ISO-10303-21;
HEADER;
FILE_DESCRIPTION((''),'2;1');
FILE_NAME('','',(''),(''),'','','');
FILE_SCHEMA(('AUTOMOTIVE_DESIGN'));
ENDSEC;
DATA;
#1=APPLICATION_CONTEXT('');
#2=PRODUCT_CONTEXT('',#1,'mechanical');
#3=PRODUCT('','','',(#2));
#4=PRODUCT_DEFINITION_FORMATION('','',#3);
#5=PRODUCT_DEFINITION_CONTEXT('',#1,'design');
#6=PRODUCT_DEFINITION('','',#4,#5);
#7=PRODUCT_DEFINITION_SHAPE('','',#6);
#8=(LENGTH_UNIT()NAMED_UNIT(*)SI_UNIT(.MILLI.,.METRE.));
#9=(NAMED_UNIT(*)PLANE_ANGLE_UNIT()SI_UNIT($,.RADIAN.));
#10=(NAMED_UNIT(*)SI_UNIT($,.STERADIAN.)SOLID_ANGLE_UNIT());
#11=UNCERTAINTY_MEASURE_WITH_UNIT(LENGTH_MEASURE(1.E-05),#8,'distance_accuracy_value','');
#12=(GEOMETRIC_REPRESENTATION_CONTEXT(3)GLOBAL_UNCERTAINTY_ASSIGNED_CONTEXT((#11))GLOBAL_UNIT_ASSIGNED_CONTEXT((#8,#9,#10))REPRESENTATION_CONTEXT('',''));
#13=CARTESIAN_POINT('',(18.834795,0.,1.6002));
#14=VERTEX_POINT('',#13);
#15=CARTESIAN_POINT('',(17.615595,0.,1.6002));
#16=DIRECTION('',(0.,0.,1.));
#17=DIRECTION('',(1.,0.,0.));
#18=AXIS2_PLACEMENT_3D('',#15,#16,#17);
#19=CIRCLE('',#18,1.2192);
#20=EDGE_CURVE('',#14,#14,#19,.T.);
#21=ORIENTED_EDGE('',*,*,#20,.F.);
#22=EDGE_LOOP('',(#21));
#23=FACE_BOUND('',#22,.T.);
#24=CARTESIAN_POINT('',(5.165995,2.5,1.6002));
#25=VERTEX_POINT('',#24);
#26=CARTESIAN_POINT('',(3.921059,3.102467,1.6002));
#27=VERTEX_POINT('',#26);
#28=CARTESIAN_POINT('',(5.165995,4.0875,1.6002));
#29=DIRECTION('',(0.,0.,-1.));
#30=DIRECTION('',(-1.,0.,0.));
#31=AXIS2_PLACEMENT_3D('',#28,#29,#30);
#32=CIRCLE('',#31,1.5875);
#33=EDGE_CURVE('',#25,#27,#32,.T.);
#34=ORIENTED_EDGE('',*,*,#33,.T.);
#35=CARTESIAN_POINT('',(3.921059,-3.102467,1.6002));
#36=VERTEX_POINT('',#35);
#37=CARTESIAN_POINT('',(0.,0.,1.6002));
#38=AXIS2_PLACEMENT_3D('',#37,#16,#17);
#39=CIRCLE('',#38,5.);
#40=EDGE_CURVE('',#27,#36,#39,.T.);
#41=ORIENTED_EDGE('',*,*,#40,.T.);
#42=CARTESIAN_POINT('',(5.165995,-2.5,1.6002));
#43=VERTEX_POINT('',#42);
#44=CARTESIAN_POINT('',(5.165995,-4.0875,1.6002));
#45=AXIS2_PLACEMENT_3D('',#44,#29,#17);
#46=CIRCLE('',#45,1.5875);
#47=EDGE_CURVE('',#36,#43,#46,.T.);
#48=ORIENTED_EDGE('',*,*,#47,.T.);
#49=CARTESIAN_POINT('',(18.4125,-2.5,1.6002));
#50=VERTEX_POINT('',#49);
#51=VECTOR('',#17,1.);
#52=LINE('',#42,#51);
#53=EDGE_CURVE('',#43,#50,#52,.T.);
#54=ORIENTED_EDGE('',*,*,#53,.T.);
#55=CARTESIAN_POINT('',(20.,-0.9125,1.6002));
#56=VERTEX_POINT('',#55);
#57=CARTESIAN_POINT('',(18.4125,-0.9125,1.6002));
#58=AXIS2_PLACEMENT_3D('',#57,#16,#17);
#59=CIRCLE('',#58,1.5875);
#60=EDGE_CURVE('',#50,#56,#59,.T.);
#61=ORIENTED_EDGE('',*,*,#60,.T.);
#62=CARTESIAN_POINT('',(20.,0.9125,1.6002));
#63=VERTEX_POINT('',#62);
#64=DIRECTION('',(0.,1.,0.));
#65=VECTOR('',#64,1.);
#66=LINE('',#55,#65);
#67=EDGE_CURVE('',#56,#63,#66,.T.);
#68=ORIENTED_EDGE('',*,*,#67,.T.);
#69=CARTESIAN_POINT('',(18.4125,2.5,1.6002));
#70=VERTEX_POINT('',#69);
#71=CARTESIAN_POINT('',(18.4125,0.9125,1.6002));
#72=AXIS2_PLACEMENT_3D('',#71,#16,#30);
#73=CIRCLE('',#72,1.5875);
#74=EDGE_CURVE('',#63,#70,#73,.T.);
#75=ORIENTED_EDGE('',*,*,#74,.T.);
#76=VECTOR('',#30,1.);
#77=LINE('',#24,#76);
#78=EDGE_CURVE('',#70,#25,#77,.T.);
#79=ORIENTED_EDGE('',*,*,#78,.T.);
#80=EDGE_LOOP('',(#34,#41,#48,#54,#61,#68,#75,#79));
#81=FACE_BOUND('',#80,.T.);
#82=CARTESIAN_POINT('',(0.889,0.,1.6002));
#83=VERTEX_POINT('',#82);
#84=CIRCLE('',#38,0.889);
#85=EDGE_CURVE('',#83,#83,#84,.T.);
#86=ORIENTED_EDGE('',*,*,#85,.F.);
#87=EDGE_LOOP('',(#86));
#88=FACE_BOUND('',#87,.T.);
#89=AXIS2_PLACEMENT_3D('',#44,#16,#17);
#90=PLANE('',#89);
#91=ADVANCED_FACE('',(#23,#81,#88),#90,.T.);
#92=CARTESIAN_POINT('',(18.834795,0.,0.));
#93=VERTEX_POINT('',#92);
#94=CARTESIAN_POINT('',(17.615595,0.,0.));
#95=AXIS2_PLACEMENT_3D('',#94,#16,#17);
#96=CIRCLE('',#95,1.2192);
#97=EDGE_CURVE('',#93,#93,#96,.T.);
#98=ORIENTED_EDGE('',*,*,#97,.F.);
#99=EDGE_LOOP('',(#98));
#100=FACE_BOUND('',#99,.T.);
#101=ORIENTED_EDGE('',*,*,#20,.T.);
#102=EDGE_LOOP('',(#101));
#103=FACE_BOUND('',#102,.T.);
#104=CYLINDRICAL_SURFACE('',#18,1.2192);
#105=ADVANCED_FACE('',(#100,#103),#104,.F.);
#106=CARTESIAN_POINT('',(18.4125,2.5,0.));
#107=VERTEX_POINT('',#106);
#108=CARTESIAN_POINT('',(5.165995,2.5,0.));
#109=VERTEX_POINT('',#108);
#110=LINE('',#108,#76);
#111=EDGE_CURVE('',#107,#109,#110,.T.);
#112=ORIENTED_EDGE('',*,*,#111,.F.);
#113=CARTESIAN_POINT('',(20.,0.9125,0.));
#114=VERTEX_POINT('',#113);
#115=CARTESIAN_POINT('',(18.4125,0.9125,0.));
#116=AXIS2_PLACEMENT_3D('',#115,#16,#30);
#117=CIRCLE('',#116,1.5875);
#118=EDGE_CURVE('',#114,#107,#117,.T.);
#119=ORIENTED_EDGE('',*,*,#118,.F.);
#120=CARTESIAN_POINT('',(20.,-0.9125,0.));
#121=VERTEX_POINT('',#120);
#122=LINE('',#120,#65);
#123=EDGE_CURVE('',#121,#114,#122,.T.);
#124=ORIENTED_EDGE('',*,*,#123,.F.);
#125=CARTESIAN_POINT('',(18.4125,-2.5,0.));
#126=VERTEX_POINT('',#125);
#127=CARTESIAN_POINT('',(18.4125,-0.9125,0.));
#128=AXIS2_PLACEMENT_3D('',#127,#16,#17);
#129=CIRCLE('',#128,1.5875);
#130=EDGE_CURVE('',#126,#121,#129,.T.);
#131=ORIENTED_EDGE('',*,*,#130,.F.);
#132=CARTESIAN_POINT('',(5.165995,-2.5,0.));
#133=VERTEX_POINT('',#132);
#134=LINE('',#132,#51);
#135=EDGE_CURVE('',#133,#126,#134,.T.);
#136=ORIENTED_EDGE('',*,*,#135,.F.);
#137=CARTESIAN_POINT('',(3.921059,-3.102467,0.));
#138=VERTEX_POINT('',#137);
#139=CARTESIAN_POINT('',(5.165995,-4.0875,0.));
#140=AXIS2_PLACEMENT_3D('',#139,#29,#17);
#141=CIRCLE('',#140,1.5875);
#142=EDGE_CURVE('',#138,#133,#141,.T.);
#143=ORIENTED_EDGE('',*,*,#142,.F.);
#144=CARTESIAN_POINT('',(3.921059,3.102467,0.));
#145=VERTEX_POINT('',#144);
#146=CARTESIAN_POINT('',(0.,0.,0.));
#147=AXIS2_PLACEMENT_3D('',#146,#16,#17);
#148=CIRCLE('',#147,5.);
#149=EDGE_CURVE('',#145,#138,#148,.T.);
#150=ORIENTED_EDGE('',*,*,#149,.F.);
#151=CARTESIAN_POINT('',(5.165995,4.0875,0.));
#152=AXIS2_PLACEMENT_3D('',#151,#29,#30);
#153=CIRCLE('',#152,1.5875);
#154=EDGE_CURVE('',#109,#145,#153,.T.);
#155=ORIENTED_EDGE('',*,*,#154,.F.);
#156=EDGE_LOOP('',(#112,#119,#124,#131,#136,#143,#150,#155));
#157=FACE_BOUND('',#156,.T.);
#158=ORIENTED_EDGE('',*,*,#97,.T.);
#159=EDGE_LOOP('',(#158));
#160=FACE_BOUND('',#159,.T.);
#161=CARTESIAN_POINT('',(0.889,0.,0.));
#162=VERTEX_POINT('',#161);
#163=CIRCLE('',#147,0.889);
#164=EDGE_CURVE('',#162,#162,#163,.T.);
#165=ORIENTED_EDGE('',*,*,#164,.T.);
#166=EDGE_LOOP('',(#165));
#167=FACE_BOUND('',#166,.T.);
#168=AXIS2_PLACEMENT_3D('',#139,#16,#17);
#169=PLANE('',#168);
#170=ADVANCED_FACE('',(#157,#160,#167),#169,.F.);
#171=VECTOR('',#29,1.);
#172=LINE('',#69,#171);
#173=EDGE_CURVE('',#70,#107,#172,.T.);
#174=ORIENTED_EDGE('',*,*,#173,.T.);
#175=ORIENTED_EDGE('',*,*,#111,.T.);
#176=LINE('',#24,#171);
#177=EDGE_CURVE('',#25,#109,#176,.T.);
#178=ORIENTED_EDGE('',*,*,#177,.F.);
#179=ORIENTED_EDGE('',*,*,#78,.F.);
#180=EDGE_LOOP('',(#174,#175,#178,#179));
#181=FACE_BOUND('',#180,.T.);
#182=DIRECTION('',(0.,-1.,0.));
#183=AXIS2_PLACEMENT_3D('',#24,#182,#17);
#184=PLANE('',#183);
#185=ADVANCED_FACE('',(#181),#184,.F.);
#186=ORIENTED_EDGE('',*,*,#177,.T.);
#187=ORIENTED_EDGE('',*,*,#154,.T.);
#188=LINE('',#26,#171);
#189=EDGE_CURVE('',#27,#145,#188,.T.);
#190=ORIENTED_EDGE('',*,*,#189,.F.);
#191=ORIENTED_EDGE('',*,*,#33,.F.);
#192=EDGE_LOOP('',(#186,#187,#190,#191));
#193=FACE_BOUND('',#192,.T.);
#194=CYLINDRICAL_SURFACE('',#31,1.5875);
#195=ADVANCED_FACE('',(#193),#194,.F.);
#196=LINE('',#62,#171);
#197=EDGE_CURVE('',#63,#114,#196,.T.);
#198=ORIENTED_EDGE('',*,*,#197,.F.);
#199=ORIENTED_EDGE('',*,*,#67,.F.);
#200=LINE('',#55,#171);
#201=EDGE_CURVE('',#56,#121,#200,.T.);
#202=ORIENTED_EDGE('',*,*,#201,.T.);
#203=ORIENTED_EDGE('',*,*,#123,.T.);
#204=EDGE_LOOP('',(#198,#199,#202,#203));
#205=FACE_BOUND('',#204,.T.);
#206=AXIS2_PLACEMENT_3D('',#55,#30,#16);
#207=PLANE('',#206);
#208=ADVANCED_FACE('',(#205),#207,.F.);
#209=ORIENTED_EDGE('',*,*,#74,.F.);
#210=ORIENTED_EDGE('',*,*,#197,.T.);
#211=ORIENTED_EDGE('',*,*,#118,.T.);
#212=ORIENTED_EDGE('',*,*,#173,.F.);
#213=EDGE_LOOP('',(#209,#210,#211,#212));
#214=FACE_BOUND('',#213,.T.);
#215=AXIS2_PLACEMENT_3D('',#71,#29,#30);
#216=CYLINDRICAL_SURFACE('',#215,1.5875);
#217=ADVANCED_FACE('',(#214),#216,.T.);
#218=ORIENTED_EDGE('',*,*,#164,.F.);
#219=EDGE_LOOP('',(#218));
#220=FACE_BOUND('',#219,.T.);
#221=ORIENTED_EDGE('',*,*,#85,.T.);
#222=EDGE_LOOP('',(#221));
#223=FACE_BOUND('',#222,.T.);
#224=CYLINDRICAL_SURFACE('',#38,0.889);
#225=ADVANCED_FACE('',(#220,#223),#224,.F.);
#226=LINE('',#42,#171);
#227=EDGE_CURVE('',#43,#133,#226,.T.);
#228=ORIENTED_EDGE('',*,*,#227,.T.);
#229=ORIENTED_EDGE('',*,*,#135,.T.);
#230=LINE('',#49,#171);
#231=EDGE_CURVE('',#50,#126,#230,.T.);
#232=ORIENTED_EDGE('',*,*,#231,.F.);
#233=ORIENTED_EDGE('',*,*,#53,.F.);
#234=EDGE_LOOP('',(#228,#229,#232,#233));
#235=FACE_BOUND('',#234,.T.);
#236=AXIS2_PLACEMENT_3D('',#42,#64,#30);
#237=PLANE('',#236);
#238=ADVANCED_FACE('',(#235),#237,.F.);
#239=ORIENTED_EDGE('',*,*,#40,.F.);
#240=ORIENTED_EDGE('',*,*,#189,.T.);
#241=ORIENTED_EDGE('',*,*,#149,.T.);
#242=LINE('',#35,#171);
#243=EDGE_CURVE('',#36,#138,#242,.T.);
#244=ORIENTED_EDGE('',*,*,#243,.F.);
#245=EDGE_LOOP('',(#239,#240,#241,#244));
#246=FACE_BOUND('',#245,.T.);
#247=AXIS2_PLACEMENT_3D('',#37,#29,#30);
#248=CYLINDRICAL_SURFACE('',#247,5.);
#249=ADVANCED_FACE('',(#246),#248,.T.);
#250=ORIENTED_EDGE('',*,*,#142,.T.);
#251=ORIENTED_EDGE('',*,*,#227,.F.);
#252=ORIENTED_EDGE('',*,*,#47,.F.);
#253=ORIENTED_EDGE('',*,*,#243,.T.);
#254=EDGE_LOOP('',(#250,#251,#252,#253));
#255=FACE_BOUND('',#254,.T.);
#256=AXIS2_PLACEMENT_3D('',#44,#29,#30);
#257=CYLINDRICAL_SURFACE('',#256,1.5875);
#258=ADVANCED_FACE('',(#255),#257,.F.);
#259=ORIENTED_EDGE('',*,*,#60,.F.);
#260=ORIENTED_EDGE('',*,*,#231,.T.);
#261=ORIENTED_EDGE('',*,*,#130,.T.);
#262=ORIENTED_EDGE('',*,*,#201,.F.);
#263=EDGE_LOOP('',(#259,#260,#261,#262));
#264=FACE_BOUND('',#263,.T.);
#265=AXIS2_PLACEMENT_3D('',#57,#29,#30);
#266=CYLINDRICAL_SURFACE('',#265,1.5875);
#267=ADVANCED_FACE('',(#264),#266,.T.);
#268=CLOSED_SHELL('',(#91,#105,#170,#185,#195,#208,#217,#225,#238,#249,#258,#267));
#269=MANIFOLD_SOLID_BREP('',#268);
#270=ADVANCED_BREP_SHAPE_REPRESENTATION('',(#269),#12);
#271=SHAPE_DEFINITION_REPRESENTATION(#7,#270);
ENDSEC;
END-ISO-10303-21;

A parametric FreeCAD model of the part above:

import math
import FreeCAD as App
import Part
import Sketcher
Q = App.Units.Quantity

doc = App.newDocument("Part")
body = doc.addObject("PartDesign::Body", "Body")

sketch1 = body.newObject("Sketcher::SketchObject", "Sketch")
sketch1.AttachmentSupport = (doc.getObject("XY_Plane"), [""])
sketch1.MapMode = "FlatFace"
sketch1.addGeometry([
    Part.LineSegment(App.Vector(5.2, -2.5, 0), App.Vector(18.4, -2.5, 0)),
    Part.ArcOfCircle(Part.Circle(App.Vector(18.4, -0.9, 0), App.Vector(0, 0, 1), 1.6), math.radians(-90), math.radians(0)),
    Part.LineSegment(App.Vector(20, -0.9, 0), App.Vector(20, 0.9, 0)),
    Part.ArcOfCircle(Part.Circle(App.Vector(18.4, 0.9, 0), App.Vector(0, 0, 1), 1.6), math.radians(0), math.radians(90)),
    Part.LineSegment(App.Vector(18.4, 2.5, 0), App.Vector(5.2, 2.5, 0)),
    Part.ArcOfCircle(Part.Circle(App.Vector(5.2, 4.1, 0), App.Vector(0, 0, 1), 1.6), math.radians(-142), math.radians(-90)),
    Part.ArcOfCircle(Part.Circle(App.Vector(0, 0, 0), App.Vector(0, 0, 1), 5), math.radians(38), math.radians(322)),
    Part.ArcOfCircle(Part.Circle(App.Vector(5.2, -4.1, 0), App.Vector(0, 0, 1), 1.6), math.radians(90), math.radians(142)),
], False)
sketch1.addConstraint([
    Sketcher.Constraint("Tangent", 0, 2, 1, 1),
    Sketcher.Constraint("Tangent", 1, 2, 2, 1),
    Sketcher.Constraint("Tangent", 2, 2, 3, 1),
    Sketcher.Constraint("Tangent", 3, 2, 4, 1),
    Sketcher.Constraint("Tangent", 4, 2, 5, 2),
    Sketcher.Constraint("Tangent", 5, 1, 6, 1),
    Sketcher.Constraint("Tangent", 6, 2, 7, 2),
    Sketcher.Constraint("Tangent", 7, 1, 0, 1),
    Sketcher.Constraint("Horizontal", 0),
    Sketcher.Constraint("Vertical", 2),
    Sketcher.Constraint("Horizontal", 4),
    Sketcher.Constraint("Coincident", 6, 3, -1, 1),
    Sketcher.Constraint("Equal", 1, 3),
    Sketcher.Constraint("Equal", 3, 5),
    Sketcher.Constraint("Equal", 5, 7),
    Sketcher.Constraint("Vertical", 5, 3, 7, 3),
    Sketcher.Constraint("Radius", 1, Q("0.0625 in")),
    Sketcher.Constraint("Radius", 6, Q("5 mm")),
    Sketcher.Constraint("DistanceY", 2, 1, 2, 2, Q("1.825 mm")),
    Sketcher.Constraint("DistanceX", -1, 1, 1, 3, Q("18.4125 mm")),
])
pad1 = body.newObject("PartDesign::Pad", "Pad")
pad1.Profile = sketch1
pad1.Length = Q("0.063 in")

sketch2 = body.newObject("Sketcher::SketchObject", "Sketch001")
sketch2.AttachmentSupport = (doc.getObject("XY_Plane"), [""])
sketch2.MapMode = "FlatFace"
sketch2.AttachmentOffset = App.Placement(App.Vector(0, 0, 0.063 * 25.4), App.Rotation())
sketch2.addGeometry(Part.Circle(App.Vector(0, 0, 0), App.Vector(0, 0, 1), 0.9), False)
sketch2.addConstraint([
    Sketcher.Constraint("Coincident", 0, 3, -1, 1),
    Sketcher.Constraint("Diameter", 0, Q("0.07 in")),
])
doc.recompute()
hole = body.newObject("PartDesign::Hole", "Hole")
hole.Profile = sketch2
hole.ThreadType = "None"
hole.Diameter = Q("0.07 in")
hole.DepthType = "ThroughAll"

sketch3 = body.newObject("Sketcher::SketchObject", "Sketch002")
sketch3.AttachmentSupport = (doc.getObject("XY_Plane"), [""])
sketch3.MapMode = "FlatFace"
sketch3.AttachmentOffset = App.Placement(App.Vector(0, 0, 0.063 * 25.4), App.Rotation())
sketch3.addGeometry(Part.Circle(App.Vector(17.6, 0, 0), App.Vector(0, 0, 1), 1.2), False)
sketch3.addConstraint([
    Sketcher.Constraint("PointOnObject", 0, 3, -1),
    Sketcher.Constraint("Diameter", 0, Q("0.096 in")),
    Sketcher.Constraint("DistanceX", -1, 1, 0, 3, Q("17.615595 mm")),
])
doc.recompute()
hole2 = body.newObject("PartDesign::Hole", "Hole001")
hole2.Profile = sketch3
hole2.ThreadType = "None"
hole2.Diameter = Q("0.096 in")
hole2.DepthType = "ThroughAll"

doc.recompute()
